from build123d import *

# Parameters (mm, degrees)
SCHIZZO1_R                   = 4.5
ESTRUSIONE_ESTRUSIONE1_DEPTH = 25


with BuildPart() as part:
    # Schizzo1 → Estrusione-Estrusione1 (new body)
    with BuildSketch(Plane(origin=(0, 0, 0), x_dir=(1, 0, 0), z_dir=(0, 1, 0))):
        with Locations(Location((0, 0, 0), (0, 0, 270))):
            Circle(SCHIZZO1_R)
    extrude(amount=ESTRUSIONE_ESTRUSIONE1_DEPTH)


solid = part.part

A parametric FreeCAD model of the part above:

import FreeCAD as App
import Part
import Sketcher

doc = App.newDocument("Part")
body = doc.addObject("PartDesign::Body", "Body")

sketch1 = body.newObject("Sketcher::SketchObject", "Sketch")
sketch1.AttachmentSupport = (doc.getObject("XZ_Plane"), [""])
sketch1.MapMode = "FlatFace"
sketch1.addGeometry(Part.Circle(App.Vector(0, 0, 0), App.Vector(0, 0, 1), 4.5), False)
sketch1.addConstraint([
    Sketcher.Constraint("Coincident", 0, 3, -1, 1),
    Sketcher.Constraint("Diameter", 0, 9.0),
])
pad1 = body.newObject("PartDesign::Pad", "Pad")
pad1.Profile = sketch1
pad1.Length = 25
pad1.Reversed = True

doc.recompute()
